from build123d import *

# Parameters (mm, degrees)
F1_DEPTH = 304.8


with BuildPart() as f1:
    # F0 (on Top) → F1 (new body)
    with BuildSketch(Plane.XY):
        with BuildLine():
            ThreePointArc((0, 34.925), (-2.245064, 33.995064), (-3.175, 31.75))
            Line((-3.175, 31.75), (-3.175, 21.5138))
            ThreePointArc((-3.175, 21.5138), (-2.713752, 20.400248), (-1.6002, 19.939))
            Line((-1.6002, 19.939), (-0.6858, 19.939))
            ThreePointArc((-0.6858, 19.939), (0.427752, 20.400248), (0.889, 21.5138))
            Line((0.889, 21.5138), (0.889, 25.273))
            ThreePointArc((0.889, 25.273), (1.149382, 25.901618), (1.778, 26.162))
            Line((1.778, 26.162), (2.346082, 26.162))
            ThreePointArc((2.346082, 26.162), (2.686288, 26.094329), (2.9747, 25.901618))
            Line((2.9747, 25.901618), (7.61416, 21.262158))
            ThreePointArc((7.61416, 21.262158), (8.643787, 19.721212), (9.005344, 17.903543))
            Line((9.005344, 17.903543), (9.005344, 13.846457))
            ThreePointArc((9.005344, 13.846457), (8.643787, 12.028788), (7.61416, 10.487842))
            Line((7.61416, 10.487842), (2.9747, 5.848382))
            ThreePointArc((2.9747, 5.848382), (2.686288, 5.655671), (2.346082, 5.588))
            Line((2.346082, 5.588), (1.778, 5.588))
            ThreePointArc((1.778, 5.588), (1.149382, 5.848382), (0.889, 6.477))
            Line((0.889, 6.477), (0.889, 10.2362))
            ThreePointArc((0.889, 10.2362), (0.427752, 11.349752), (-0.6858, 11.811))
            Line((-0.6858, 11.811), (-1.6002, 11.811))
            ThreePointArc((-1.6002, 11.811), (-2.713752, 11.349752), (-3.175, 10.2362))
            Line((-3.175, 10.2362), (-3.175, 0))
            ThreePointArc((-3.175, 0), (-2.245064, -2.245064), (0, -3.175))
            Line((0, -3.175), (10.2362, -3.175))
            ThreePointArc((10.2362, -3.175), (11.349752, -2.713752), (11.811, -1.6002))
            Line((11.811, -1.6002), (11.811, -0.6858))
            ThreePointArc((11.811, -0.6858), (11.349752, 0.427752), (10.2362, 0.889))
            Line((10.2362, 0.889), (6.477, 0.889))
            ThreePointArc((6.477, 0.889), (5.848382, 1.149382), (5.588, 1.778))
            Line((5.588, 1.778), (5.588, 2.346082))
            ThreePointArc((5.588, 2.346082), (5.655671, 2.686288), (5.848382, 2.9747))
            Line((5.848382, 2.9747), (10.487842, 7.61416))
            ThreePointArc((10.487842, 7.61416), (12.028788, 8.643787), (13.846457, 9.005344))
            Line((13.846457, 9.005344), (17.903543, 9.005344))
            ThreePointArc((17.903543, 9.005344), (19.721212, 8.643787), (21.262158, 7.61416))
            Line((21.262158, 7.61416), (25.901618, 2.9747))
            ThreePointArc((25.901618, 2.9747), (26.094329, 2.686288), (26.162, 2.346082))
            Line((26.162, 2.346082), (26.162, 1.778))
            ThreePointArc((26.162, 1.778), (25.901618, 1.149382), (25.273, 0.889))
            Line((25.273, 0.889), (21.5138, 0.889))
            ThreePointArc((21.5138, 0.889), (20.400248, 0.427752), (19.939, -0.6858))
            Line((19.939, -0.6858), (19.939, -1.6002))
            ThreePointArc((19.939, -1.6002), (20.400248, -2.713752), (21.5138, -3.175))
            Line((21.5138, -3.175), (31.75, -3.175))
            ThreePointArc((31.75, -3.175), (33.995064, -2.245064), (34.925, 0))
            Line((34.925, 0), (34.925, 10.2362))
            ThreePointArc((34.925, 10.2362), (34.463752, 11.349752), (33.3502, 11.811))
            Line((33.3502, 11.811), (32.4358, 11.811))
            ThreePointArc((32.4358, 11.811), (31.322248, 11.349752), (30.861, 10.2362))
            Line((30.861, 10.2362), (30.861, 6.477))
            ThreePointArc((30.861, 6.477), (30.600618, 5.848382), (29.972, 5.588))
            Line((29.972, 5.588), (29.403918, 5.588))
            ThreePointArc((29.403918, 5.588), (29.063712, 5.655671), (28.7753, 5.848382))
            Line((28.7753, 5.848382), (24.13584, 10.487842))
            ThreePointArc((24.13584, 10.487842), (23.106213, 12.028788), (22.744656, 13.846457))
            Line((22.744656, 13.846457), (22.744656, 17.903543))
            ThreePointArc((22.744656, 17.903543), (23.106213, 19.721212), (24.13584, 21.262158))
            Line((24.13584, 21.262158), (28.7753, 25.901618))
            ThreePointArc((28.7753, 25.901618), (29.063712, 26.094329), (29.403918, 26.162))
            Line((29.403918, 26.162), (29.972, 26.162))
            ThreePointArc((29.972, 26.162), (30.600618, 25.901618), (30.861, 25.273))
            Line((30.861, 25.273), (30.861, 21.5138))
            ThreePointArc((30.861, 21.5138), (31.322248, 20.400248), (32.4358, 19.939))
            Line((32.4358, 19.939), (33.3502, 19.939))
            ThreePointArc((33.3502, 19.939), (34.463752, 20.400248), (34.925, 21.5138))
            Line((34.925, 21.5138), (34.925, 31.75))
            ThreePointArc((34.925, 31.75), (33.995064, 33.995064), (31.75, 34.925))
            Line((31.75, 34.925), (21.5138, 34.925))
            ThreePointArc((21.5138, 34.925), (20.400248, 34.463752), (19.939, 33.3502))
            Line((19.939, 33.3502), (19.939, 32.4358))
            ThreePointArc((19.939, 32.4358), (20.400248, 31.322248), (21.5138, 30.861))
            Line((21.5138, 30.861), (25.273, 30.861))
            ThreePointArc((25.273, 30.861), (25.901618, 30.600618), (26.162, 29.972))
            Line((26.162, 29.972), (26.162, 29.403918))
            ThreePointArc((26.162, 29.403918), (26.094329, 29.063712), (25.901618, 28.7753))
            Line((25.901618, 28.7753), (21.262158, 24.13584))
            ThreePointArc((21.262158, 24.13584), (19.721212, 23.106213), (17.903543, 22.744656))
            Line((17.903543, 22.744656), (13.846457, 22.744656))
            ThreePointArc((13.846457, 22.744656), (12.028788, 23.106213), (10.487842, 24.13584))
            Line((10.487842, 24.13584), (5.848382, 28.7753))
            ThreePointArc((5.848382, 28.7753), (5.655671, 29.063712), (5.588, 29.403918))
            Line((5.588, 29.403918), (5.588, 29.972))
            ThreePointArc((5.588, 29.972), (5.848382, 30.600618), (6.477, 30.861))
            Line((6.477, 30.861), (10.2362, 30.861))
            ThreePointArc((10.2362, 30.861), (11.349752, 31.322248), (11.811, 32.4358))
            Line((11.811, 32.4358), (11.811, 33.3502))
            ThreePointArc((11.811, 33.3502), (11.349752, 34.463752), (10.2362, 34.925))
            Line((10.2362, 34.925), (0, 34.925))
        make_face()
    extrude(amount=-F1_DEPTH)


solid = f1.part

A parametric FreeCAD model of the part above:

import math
import FreeCAD as App
import Part
import Sketcher
Q = App.Units.Quantity

doc = App.newDocument("Part")
body = doc.addObject("PartDesign::Body", "Body")

sketch1 = body.newObject("Sketcher::SketchObject", "Sketch")
sketch1.AttachmentSupport = (doc.getObject("XY_Plane"), [""])
sketch1.MapMode = "FlatFace"
sketch1.addGeometry(Part.ArcOfCircle(Part.Circle(App.Vector(0, 31.75, 0), App.Vector(0, 0, 1), 3.175), math.radians(90.000002), math.radians(179.999998)), False)
sketch1.addGeometry(Part.LineSegment(App.Vector(-3.175, 31.75, 0), App.Vector(-3.175, 21.5138, 0)), False)
sketch1.addGeometry(Part.ArcOfCircle(Part.Circle(App.Vector(-1.600201, 21.513799, 0), App.Vector(0, 0, 1), 1.574799), math.radians(179.99997), math.radians(270.00003)), False)
sketch1.addGeometry(Part.LineSegment(App.Vector(-1.6002, 19.939, 0), App.Vector(-0.6858, 19.939, 0)), False)
sketch1.addGeometry(Part.ArcOfCircle(Part.Circle(App.Vector(-0.685799, 21.513799, 0), App.Vector(0, 0, 1), 1.574799), math.radians(-90.00003), math.radians(0.00003)), False)
sketch1.addGeometry(Part.LineSegment(App.Vector(0.889, 21.5138, 0), App.Vector(0.889, 25.273, 0)), False)
sketch1.addGeometry(Part.ArcOfCircle(Part.Circle(App.Vector(1.778, 25.273, 0), App.Vector(0, 0, 1), 0.889), math.radians(89.999984), math.radians(180.000016)), False)
sketch1.addGeometry(Part.LineSegment(App.Vector(1.778, 26.162, 0), App.Vector(2.346082, 26.162, 0)), False)
sketch1.addGeometry(Part.ArcOfCircle(Part.Circle(App.Vector(2.346083, 25.273002, 0), App.Vector(0, 0, 1), 0.888998), math.radians(44.999942), math.radians(90.000073)), False)
sketch1.addGeometry(Part.LineSegment(App.Vector(2.9747, 25.901618, 0), App.Vector(7.61416, 21.262158, 0)), False)
sketch1.addGeometry(Part.ArcOfCircle(Part.Circle(App.Vector(4.255543, 17.903542, 0), App.Vector(0, 0, 1), 4.749801), math.radians(0.000012), math.radians(44.999992)), False)
sketch1.addGeometry(Part.LineSegment(App.Vector(9.005344, 17.903543, 0), App.Vector(9.005344, 13.846457, 0)), False)
sketch1.addGeometry(Part.ArcOfCircle(Part.Circle(App.Vector(4.255543, 13.846458, 0), App.Vector(0, 0, 1), 4.749801), math.radians(-44.999992), math.radians(-0.000012)), False)
sketch1.addGeometry(Part.LineSegment(App.Vector(7.61416, 10.487842, 0), App.Vector(2.9747, 5.848382, 0)), False)
sketch1.addGeometry(Part.ArcOfCircle(Part.Circle(App.Vector(2.346083, 6.476998, 0), App.Vector(0, 0, 1), 0.888998), math.radians(-90.000073), math.radians(-44.999942)), False)
sketch1.addGeometry(Part.LineSegment(App.Vector(2.346082, 5.588, 0), App.Vector(1.778, 5.588, 0)), False)
sketch1.addGeometry(Part.ArcOfCircle(Part.Circle(App.Vector(1.778, 6.477, 0), App.Vector(0, 0, 1), 0.889), math.radians(179.999984), math.radians(270.000016)), False)
sketch1.addGeometry(Part.LineSegment(App.Vector(0.889, 6.477, 0), App.Vector(0.889, 10.2362, 0)), False)
sketch1.addGeometry(Part.ArcOfCircle(Part.Circle(App.Vector(-0.685799, 10.236201, 0), App.Vector(0, 0, 1), 1.574799), math.radians(-0.00003), math.radians(90.00003)), False)
sketch1.addGeometry(Part.LineSegment(App.Vector(-0.6858, 11.811, 0), App.Vector(-1.6002, 11.811, 0)), False)
sketch1.addGeometry(Part.ArcOfCircle(Part.Circle(App.Vector(-1.600201, 10.236201, 0), App.Vector(0, 0, 1), 1.574799), math.radians(89.99997), math.radians(180.00003)), False)
sketch1.addGeometry(Part.LineSegment(App.Vector(-3.175, 10.2362, 0), App.Vector(-3.175, 0, 0)), False)
sketch1.addGeometry(Part.ArcOfCircle(Part.Circle(App.Vector(0, 0, 0), App.Vector(0, 0, 1), 3.175), math.radians(-179.999998), math.radians(-90.000002)), False)
sketch1.addGeometry(Part.LineSegment(App.Vector(0, -3.175, 0), App.Vector(10.2362, -3.175, 0)), False)
sketch1.addGeometry(Part.ArcOfCircle(Part.Circle(App.Vector(10.236201, -1.600201, 0), App.Vector(0, 0, 1), 1.574799), math.radians(-90.00003), math.radians(0.00003)), False)
sketch1.addGeometry(Part.LineSegment(App.Vector(11.811, -1.6002, 0), App.Vector(11.811, -0.6858, 0)), False)
sketch1.addGeometry(Part.ArcOfCircle(Part.Circle(App.Vector(10.236201, -0.685799, 0), App.Vector(0, 0, 1), 1.574799), math.radians(-0.00003), math.radians(90.00003)), False)
sketch1.addGeometry(Part.LineSegment(App.Vector(10.2362, 0.889, 0), App.Vector(6.477, 0.889, 0)), False)
sketch1.addGeometry(Part.ArcOfCircle(Part.Circle(App.Vector(6.477, 1.778, 0), App.Vector(0, 0, 1), 0.889), math.radians(179.999984), math.radians(270.000016)), False)
sketch1.addGeometry(Part.LineSegment(App.Vector(5.588, 1.778, 0), App.Vector(5.588, 2.346082, 0)), False)
sketch1.addGeometry(Part.ArcOfCircle(Part.Circle(App.Vector(6.476998, 2.346083, 0), App.Vector(0, 0, 1), 0.888998), math.radians(134.999942), math.radians(180.000073)), False)
sketch1.addGeometry(Part.LineSegment(App.Vector(5.848382, 2.9747, 0), App.Vector(10.487842, 7.61416, 0)), False)
sketch1.addGeometry(Part.ArcOfCircle(Part.Circle(App.Vector(13.846458, 4.255543, 0), App.Vector(0, 0, 1), 4.749801), math.radians(90.000012), math.radians(134.999992)), False)
sketch1.addGeometry(Part.LineSegment(App.Vector(13.846457, 9.005344, 0), App.Vector(17.903543, 9.005344, 0)), False)
sketch1.addGeometry(Part.ArcOfCircle(Part.Circle(App.Vector(17.903542, 4.255543, 0), App.Vector(0, 0, 1), 4.749801), math.radians(45.000008), math.radians(89.999988)), False)
sketch1.addGeometry(Part.LineSegment(App.Vector(21.262158, 7.61416, 0), App.Vector(25.901618, 2.9747, 0)), False)
sketch1.addGeometry(Part.ArcOfCircle(Part.Circle(App.Vector(25.273002, 2.346083, 0), App.Vector(0, 0, 1), 0.888998), math.radians(-0.000073), math.radians(45.000058)), False)
sketch1.addGeometry(Part.LineSegment(App.Vector(26.162, 2.346082, 0), App.Vector(26.162, 1.778, 0)), False)
sketch1.addGeometry(Part.ArcOfCircle(Part.Circle(App.Vector(25.273, 1.778, 0), App.Vector(0, 0, 1), 0.889), math.radians(-90.000016), math.radians(0.000016)), False)
sketch1.addGeometry(Part.LineSegment(App.Vector(25.273, 0.889, 0), App.Vector(21.5138, 0.889, 0)), False)
sketch1.addGeometry(Part.ArcOfCircle(Part.Circle(App.Vector(21.513799, -0.685799, 0), App.Vector(0, 0, 1), 1.574799), math.radians(89.99997), math.radians(180.00003)), False)
sketch1.addGeometry(Part.LineSegment(App.Vector(19.939, -0.6858, 0), App.Vector(19.939, -1.6002, 0)), False)
sketch1.addGeometry(Part.ArcOfCircle(Part.Circle(App.Vector(21.513799, -1.600201, 0), App.Vector(0, 0, 1), 1.574799), math.radians(179.99997), math.radians(270.00003)), False)
sketch1.addGeometry(Part.LineSegment(App.Vector(21.5138, -3.175, 0), App.Vector(31.75, -3.175, 0)), False)
sketch1.addGeometry(Part.ArcOfCircle(Part.Circle(App.Vector(31.75, 0, 0), App.Vector(0, 0, 1), 3.175), math.radians(-89.999998), math.radians(-0.000002)), False)
sketch1.addGeometry(Part.LineSegment(App.Vector(34.925, 0, 0), App.Vector(34.925, 10.2362, 0)), False)
sketch1.addGeometry(Part.ArcOfCircle(Part.Circle(App.Vector(33.350201, 10.236201, 0), App.Vector(0, 0, 1), 1.574799), math.radians(-0.00003), math.radians(90.00003)), False)
sketch1.addGeometry(Part.LineSegment(App.Vector(33.3502, 11.811, 0), App.Vector(32.4358, 11.811, 0)), False)
sketch1.addGeometry(Part.ArcOfCircle(Part.Circle(App.Vector(32.435799, 10.236201, 0), App.Vector(0, 0, 1), 1.574799), math.radians(89.99997), math.radians(180.00003)), False)
sketch1.addGeometry(Part.LineSegment(App.Vector(30.861, 10.2362, 0), App.Vector(30.861, 6.477, 0)), False)
sketch1.addGeometry(Part.ArcOfCircle(Part.Circle(App.Vector(29.972, 6.477, 0), App.Vector(0, 0, 1), 0.889), math.radians(-90.000016), math.radians(0.000016)), False)
sketch1.addGeometry(Part.LineSegment(App.Vector(29.972, 5.588, 0), App.Vector(29.403918, 5.588, 0)), False)
sketch1.addGeometry(Part.ArcOfCircle(Part.Circle(App.Vector(29.403917, 6.476998, 0), App.Vector(0, 0, 1), 0.888998), math.radians(-135.000058), math.radians(-89.999927)), False)
sketch1.addGeometry(Part.LineSegment(App.Vector(28.7753, 5.848382, 0), App.Vector(24.13584, 10.487842, 0)), False)
sketch1.addGeometry(Part.ArcOfCircle(Part.Circle(App.Vector(27.494457, 13.846458, 0), App.Vector(0, 0, 1), 4.749801), math.radians(-179.999988), math.radians(-135.000008)), False)
sketch1.addGeometry(Part.LineSegment(App.Vector(22.744656, 13.846457, 0), App.Vector(22.744656, 17.903543, 0)), False)
sketch1.addGeometry(Part.ArcOfCircle(Part.Circle(App.Vector(27.494457, 17.903542, 0), App.Vector(0, 0, 1), 4.749801), math.radians(135.000008), math.radians(179.999988)), False)
sketch1.addGeometry(Part.LineSegment(App.Vector(24.13584, 21.262158, 0), App.Vector(28.7753, 25.901618, 0)), False)
sketch1.addGeometry(Part.ArcOfCircle(Part.Circle(App.Vector(29.403917, 25.273002, 0), App.Vector(0, 0, 1), 0.888998), math.radians(89.999927), math.radians(135.000058)), False)
sketch1.addGeometry(Part.LineSegment(App.Vector(29.403918, 26.162, 0), App.Vector(29.972, 26.162, 0)), False)
sketch1.addGeometry(Part.ArcOfCircle(Part.Circle(App.Vector(29.972, 25.273, 0), App.Vector(0, 0, 1), 0.889), math.radians(-0.000016), math.radians(90.000016)), False)
sketch1.addGeometry(Part.LineSegment(App.Vector(30.861, 25.273, 0), App.Vector(30.861, 21.5138, 0)), False)
sketch1.addGeometry(Part.ArcOfCircle(Part.Circle(App.Vector(32.435799, 21.513799, 0), App.Vector(0, 0, 1), 1.574799), math.radians(179.99997), math.radians(270.00003)), False)
sketch1.addGeometry(Part.LineSegment(App.Vector(32.4358, 19.939, 0), App.Vector(33.3502, 19.939, 0)), False)
sketch1.addGeometry(Part.ArcOfCircle(Part.Circle(App.Vector(33.350201, 21.513799, 0), App.Vector(0, 0, 1), 1.574799), math.radians(-90.00003), math.radians(0.00003)), False)
sketch1.addGeometry(Part.LineSegment(App.Vector(34.925, 21.5138, 0), App.Vector(34.925, 31.75, 0)), False)
sketch1.addGeometry(Part.ArcOfCircle(Part.Circle(App.Vector(31.75, 31.75, 0), App.Vector(0, 0, 1), 3.175), math.radians(0.000002), math.radians(89.999998)), False)
sketch1.addGeometry(Part.LineSegment(App.Vector(31.75, 34.925, 0), App.Vector(21.5138, 34.925, 0)), False)
sketch1.addGeometry(Part.ArcOfCircle(Part.Circle(App.Vector(21.513799, 33.350201, 0), App.Vector(0, 0, 1), 1.574799), math.radians(89.99997), math.radians(180.00003)), False)
sketch1.addGeometry(Part.LineSegment(App.Vector(19.939, 33.3502, 0), App.Vector(19.939, 32.4358, 0)), False)
sketch1.addGeometry(Part.ArcOfCircle(Part.Circle(App.Vector(21.513799, 32.435799, 0), App.Vector(0, 0, 1), 1.574799), math.radians(179.99997), math.radians(270.00003)), False)
sketch1.addGeometry(Part.LineSegment(App.Vector(21.5138, 30.861, 0), App.Vector(25.273, 30.861, 0)), False)
sketch1.addGeometry(Part.ArcOfCircle(Part.Circle(App.Vector(25.273, 29.972, 0), App.Vector(0, 0, 1), 0.889), math.radians(-0.000016), math.radians(90.000016)), False)
sketch1.addGeometry(Part.LineSegment(App.Vector(26.162, 29.972, 0), App.Vector(26.162, 29.403918, 0)), False)
sketch1.addGeometry(Part.ArcOfCircle(Part.Circle(App.Vector(25.273002, 29.403917, 0), App.Vector(0, 0, 1), 0.888998), math.radians(-45.000058), math.radians(0.000073)), False)
sketch1.addGeometry(Part.LineSegment(App.Vector(25.901618, 28.7753, 0), App.Vector(21.262158, 24.13584, 0)), False)
sketch1.addGeometry(Part.ArcOfCircle(Part.Circle(App.Vector(17.903542, 27.494457, 0), App.Vector(0, 0, 1), 4.749801), math.radians(-89.999988), math.radians(-45.000008)), False)
sketch1.addGeometry(Part.LineSegment(App.Vector(17.903543, 22.744656, 0), App.Vector(13.846457, 22.744656, 0)), False)
sketch1.addGeometry(Part.ArcOfCircle(Part.Circle(App.Vector(13.846458, 27.494457, 0), App.Vector(0, 0, 1), 4.749801), math.radians(-134.999992), math.radians(-90.000012)), False)
sketch1.addGeometry(Part.LineSegment(App.Vector(10.487842, 24.13584, 0), App.Vector(5.848382, 28.7753, 0)), False)
sketch1.addGeometry(Part.ArcOfCircle(Part.Circle(App.Vector(6.476998, 29.403917, 0), App.Vector(0, 0, 1), 0.888998), math.radians(179.999927), math.radians(225.000058)), False)
sketch1.addGeometry(Part.LineSegment(App.Vector(5.588, 29.403918, 0), App.Vector(5.588, 29.972, 0)), False)
sketch1.addGeometry(Part.ArcOfCircle(Part.Circle(App.Vector(6.477, 29.972, 0), App.Vector(0, 0, 1), 0.889), math.radians(89.999984), math.radians(180.000016)), False)
sketch1.addGeometry(Part.LineSegment(App.Vector(6.477, 30.861, 0), App.Vector(10.2362, 30.861, 0)), False)
sketch1.addGeometry(Part.ArcOfCircle(Part.Circle(App.Vector(10.236201, 32.435799, 0), App.Vector(0, 0, 1), 1.574799), math.radians(-90.00003), math.radians(0.00003)), False)
sketch1.addGeometry(Part.LineSegment(App.Vector(11.811, 32.4358, 0), App.Vector(11.811, 33.3502, 0)), False)
sketch1.addGeometry(Part.ArcOfCircle(Part.Circle(App.Vector(10.236201, 33.350201, 0), App.Vector(0, 0, 1), 1.574799), math.radians(-0.00003), math.radians(90.00003)), False)
sketch1.addGeometry(Part.LineSegment(App.Vector(10.2362, 34.925, 0), App.Vector(0, 34.925, 0)), False)
sketch1.addConstraint(Sketcher.Constraint("Tangent", 0, 2, 1, 1))
sketch1.addConstraint(Sketcher.Constraint("Tangent", 1, 2, 2, 1))
sketch1.addConstraint(Sketcher.Constraint("Tangent", 2, 2, 3, 1))
sketch1.addConstraint(Sketcher.Constraint("Tangent", 3, 2, 4, 1))
sketch1.addConstraint(Sketcher.Constraint("Tangent", 4, 2, 5, 1))
sketch1.addConstraint(Sketcher.Constraint("Tangent", 5, 2, 6, 2))
sketch1.addConstraint(Sketcher.Constraint("Tangent", 6, 1, 7, 1))
sketch1.addConstraint(Sketcher.Constraint("Tangent", 7, 2, 8, 2))
sketch1.addConstraint(Sketcher.Constraint("Tangent", 8, 1, 9, 1))
sketch1.addConstraint(Sketcher.Constraint("Tangent", 9, 2, 10, 2))
sketch1.addConstraint(Sketcher.Constraint("Tangent", 10, 1, 11, 1))
sketch1.addConstraint(Sketcher.Constraint("Tangent", 11, 2, 12, 2))
sketch1.addConstraint(Sketcher.Constraint("Tangent", 12, 1, 13, 1))
sketch1.addConstraint(Sketcher.Constraint("Tangent", 13, 2, 14, 2))
sketch1.addConstraint(Sketcher.Constraint("Tangent", 14, 1, 15, 1))
sketch1.addConstraint(Sketcher.Constraint("Tangent", 15, 2, 16, 2))
sketch1.addConstraint(Sketcher.Constraint("Tangent", 16, 1, 17, 1))
sketch1.addConstraint(Sketcher.Constraint("Tangent", 17, 2, 18, 1))
sketch1.addConstraint(Sketcher.Constraint("Tangent", 18, 2, 19, 1))
sketch1.addConstraint(Sketcher.Constraint("Tangent", 19, 2, 20, 1))
sketch1.addConstraint(Sketcher.Constraint("Tangent", 20, 2, 21, 1))
sketch1.addConstraint(Sketcher.Constraint("Tangent", 21, 2, 22, 1))
sketch1.addConstraint(Sketcher.Constraint("Tangent", 22, 2, 23, 1))
sketch1.addConstraint(Sketcher.Constraint("Tangent", 23, 2, 24, 1))
sketch1.addConstraint(Sketcher.Constraint("Tangent", 24, 2, 25, 1))
sketch1.addConstraint(Sketcher.Constraint("Tangent", 25, 2, 26, 1))
sketch1.addConstraint(Sketcher.Constraint("Tangent", 26, 2, 27, 1))
sketch1.addConstraint(Sketcher.Constraint("Tangent", 27, 2, 28, 2))
sketch1.addConstraint(Sketcher.Constraint("Tangent", 28, 1, 29, 1))
sketch1.addConstraint(Sketcher.Constraint("Tangent", 29, 2, 30, 2))
sketch1.addConstraint(Sketcher.Constraint("Tangent", 30, 1, 31, 1))
sketch1.addConstraint(Sketcher.Constraint("Tangent", 31, 2, 32, 2))
sketch1.addConstraint(Sketcher.Constraint("Tangent", 32, 1, 33, 1))
sketch1.addConstraint(Sketcher.Constraint("Tangent", 33, 2, 34, 2))
sketch1.addConstraint(Sketcher.Constraint("Tangent", 34, 1, 35, 1))
sketch1.addConstraint(Sketcher.Constraint("Tangent", 35, 2, 36, 2))
sketch1.addConstraint(Sketcher.Constraint("Tangent", 36, 1, 37, 1))
sketch1.addConstraint(Sketcher.Constraint("Tangent", 37, 2, 38, 2))
sketch1.addConstraint(Sketcher.Constraint("Tangent", 38, 1, 39, 1))
sketch1.addConstraint(Sketcher.Constraint("Tangent", 39, 2, 40, 1))
sketch1.addConstraint(Sketcher.Constraint("Tangent", 40, 2, 41, 1))
sketch1.addConstraint(Sketcher.Constraint("Tangent", 41, 2, 42, 1))
sketch1.addConstraint(Sketcher.Constraint("Tangent", 42, 2, 43, 1))
sketch1.addConstraint(Sketcher.Constraint("Tangent", 43, 2, 44, 1))
sketch1.addConstraint(Sketcher.Constraint("Tangent", 44, 2, 45, 1))
sketch1.addConstraint(Sketcher.Constraint("Tangent", 45, 2, 46, 1))
sketch1.addConstraint(Sketcher.Constraint("Tangent", 46, 2, 47, 1))
sketch1.addConstraint(Sketcher.Constraint("Tangent", 47, 2, 48, 1))
sketch1.addConstraint(Sketcher.Constraint("Tangent", 48, 2, 49, 1))
sketch1.addConstraint(Sketcher.Constraint("Tangent", 49, 2, 50, 2))
sketch1.addConstraint(Sketcher.Constraint("Tangent", 50, 1, 51, 1))
sketch1.addConstraint(Sketcher.Constraint("Tangent", 51, 2, 52, 2))
sketch1.addConstraint(Sketcher.Constraint("Tangent", 52, 1, 53, 1))
sketch1.addConstraint(Sketcher.Constraint("Tangent", 53, 2, 54, 2))
sketch1.addConstraint(Sketcher.Constraint("Tangent", 54, 1, 55, 1))
sketch1.addConstraint(Sketcher.Constraint("Tangent", 55, 2, 56, 2))
sketch1.addConstraint(Sketcher.Constraint("Tangent", 56, 1, 57, 1))
sketch1.addConstraint(Sketcher.Constraint("Tangent", 57, 2, 58, 2))
sketch1.addConstraint(Sketcher.Constraint("Tangent", 58, 1, 59, 1))
sketch1.addConstraint(Sketcher.Constraint("Tangent", 59, 2, 60, 2))
sketch1.addConstraint(Sketcher.Constraint("Tangent", 60, 1, 61, 1))
sketch1.addConstraint(Sketcher.Constraint("Tangent", 61, 2, 62, 1))
sketch1.addConstraint(Sketcher.Constraint("Tangent", 62, 2, 63, 1))
sketch1.addConstraint(Sketcher.Constraint("Tangent", 63, 2, 64, 1))
sketch1.addConstraint(Sketcher.Constraint("Tangent", 64, 2, 65, 1))
sketch1.addConstraint(Sketcher.Constraint("Tangent", 65, 2, 66, 1))
sketch1.addConstraint(Sketcher.Constraint("Tangent", 66, 2, 67, 1))
sketch1.addConstraint(Sketcher.Constraint("Tangent", 67, 2, 68, 1))
sketch1.addConstraint(Sketcher.Constraint("Tangent", 68, 2, 69, 1))
sketch1.addConstraint(Sketcher.Constraint("Tangent", 69, 2, 70, 1))
sketch1.addConstraint(Sketcher.Constraint("Tangent", 70, 2, 71, 1))
sketch1.addConstraint(Sketcher.Constraint("Tangent", 71, 2, 72, 2))
sketch1.addConstraint(Sketcher.Constraint("Tangent", 72, 1, 73, 1))
sketch1.addConstraint(Sketcher.Constraint("Tangent", 73, 2, 74, 2))
sketch1.addConstraint(Sketcher.Constraint("Tangent", 74, 1, 75, 1))
sketch1.addConstraint(Sketcher.Constraint("Tangent", 75, 2, 76, 2))
sketch1.addConstraint(Sketcher.Constraint("Tangent", 76, 1, 77, 1))
sketch1.addConstraint(Sketcher.Constraint("Tangent", 77, 2, 78, 2))
sketch1.addConstraint(Sketcher.Constraint("Tangent", 78, 1, 79, 1))
sketch1.addConstraint(Sketcher.Constraint("Tangent", 79, 2, 80, 2))
sketch1.addConstraint(Sketcher.Constraint("Tangent", 80, 1, 81, 1))
sketch1.addConstraint(Sketcher.Constraint("Tangent", 81, 2, 82, 2))
sketch1.addConstraint(Sketcher.Constraint("Tangent", 82, 1, 83, 1))
sketch1.addConstraint(Sketcher.Constraint("Tangent", 83, 2, 84, 1))
sketch1.addConstraint(Sketcher.Constraint("Tangent", 84, 2, 85, 1))
sketch1.addConstraint(Sketcher.Constraint("Tangent", 85, 2, 86, 1))
sketch1.addConstraint(Sketcher.Constraint("Tangent", 86, 2, 87, 1))
sketch1.addConstraint(Sketcher.Constraint("Tangent", 87, 2, 0, 1))
sketch1.addConstraint(Sketcher.Constraint("Vertical", 1))
sketch1.addConstraint(Sketcher.Constraint("Horizontal", 3))
sketch1.addConstraint(Sketcher.Constraint("Vertical", 5))
sketch1.addConstraint(Sketcher.Constraint("Horizontal", 7))
sketch1.addConstraint(Sketcher.Constraint("Vertical", 11))
sketch1.addConstraint(Sketcher.Constraint("Horizontal", 15))
sketch1.addConstraint(Sketcher.Constraint("Vertical", 17))
sketch1.addConstraint(Sketcher.Constraint("Horizontal", 19))
sketch1.addConstraint(Sketcher.Constraint("Vertical", 21))
sketch1.addConstraint(Sketcher.Constraint("Horizontal", 23))
sketch1.addConstraint(Sketcher.Constraint("Vertical", 25))
sketch1.addConstraint(Sketcher.Constraint("Horizontal", 27))
sketch1.addConstraint(Sketcher.Constraint("Vertical", 29))
sketch1.addConstraint(Sketcher.Constraint("Horizontal", 33))
sketch1.addConstraint(Sketcher.Constraint("Vertical", 37))
sketch1.addConstraint(Sketcher.Constraint("Horizontal", 39))
sketch1.addConstraint(Sketcher.Constraint("Vertical", 41))
sketch1.addConstraint(Sketcher.Constraint("Horizontal", 43))
sketch1.addConstraint(Sketcher.Constraint("Vertical", 45))
sketch1.addConstraint(Sketcher.Constraint("Horizontal", 47))
sketch1.addConstraint(Sketcher.Constraint("Vertical", 49))
sketch1.addConstraint(Sketcher.Constraint("Horizontal", 51))
sketch1.addConstraint(Sketcher.Constraint("Vertical", 55))
sketch1.addConstraint(Sketcher.Constraint("Horizontal", 59))
sketch1.addConstraint(Sketcher.Constraint("Vertical", 61))
sketch1.addConstraint(Sketcher.Constraint("Horizontal", 63))
sketch1.addConstraint(Sketcher.Constraint("Vertical", 65))
sketch1.addConstraint(Sketcher.Constraint("Horizontal", 67))
sketch1.addConstraint(Sketcher.Constraint("Vertical", 69))
sketch1.addConstraint(Sketcher.Constraint("Horizontal", 71))
sketch1.addConstraint(Sketcher.Constraint("Vertical", 73))
sketch1.addConstraint(Sketcher.Constraint("Horizontal", 77))
sketch1.addConstraint(Sketcher.Constraint("Vertical", 81))
sketch1.addConstraint(Sketcher.Constraint("Horizontal", 83))
sketch1.addConstraint(Sketcher.Constraint("Vertical", 85))
sketch1.addConstraint(Sketcher.Constraint("Horizontal", 87))
sketch1.addConstraint(Sketcher.Constraint("Coincident", 22, 3, -1, 1))
sketch1.addConstraint(Sketcher.Constraint("Equal", 2, 4))
sketch1.addConstraint(Sketcher.Constraint("Equal", 10, 12))
sketch1.addConstraint(Sketcher.Constraint("Equal", 8, 14))
sketch1.addConstraint(Sketcher.Constraint("Equal", 6, 16))
sketch1.addConstraint(Sketcher.Constraint("Equal", 4, 18))
sketch1.addConstraint(Sketcher.Constraint("Equal", 18, 20))
sketch1.addConstraint(Sketcher.Constraint("Equal", 0, 22))
sketch1.addConstraint(Sketcher.Constraint("Equal", 20, 24))
sketch1.addConstraint(Sketcher.Constraint("Equal", 24, 26))
sketch1.addConstraint(Sketcher.Constraint("Equal", 16, 28))
sketch1.addConstraint(Sketcher.Constraint("Equal", 14, 30))
sketch1.addConstraint(Sketcher.Constraint("Equal", 12, 32))
sketch1.addConstraint(Sketcher.Constraint("Equal", 32, 34))
sketch1.addConstraint(Sketcher.Constraint("Equal", 30, 36))
sketch1.addConstraint(Sketcher.Constraint("Equal", 28, 38))
sketch1.addConstraint(Sketcher.Constraint("Equal", 26, 40))
sketch1.addConstraint(Sketcher.Constraint("Equal", 40, 42))
sketch1.addConstraint(Sketcher.Constraint("Equal", 22, 44))
sketch1.addConstraint(Sketcher.Constraint("Equal", 42, 46))
sketch1.addConstraint(Sketcher.Constraint("Equal", 46, 48))
sketch1.addConstraint(Sketcher.Constraint("Equal", 38, 50))
sketch1.addConstraint(Sketcher.Constraint("Equal", 36, 52))
sketch1.addConstraint(Sketcher.Constraint("Equal", 34, 54))
sketch1.addConstraint(Sketcher.Constraint("Equal", 54, 56))
sketch1.addConstraint(Sketcher.Constraint("Equal", 52, 58))
sketch1.addConstraint(Sketcher.Constraint("Equal", 50, 60))
sketch1.addConstraint(Sketcher.Constraint("Equal", 48, 62))
sketch1.addConstraint(Sketcher.Constraint("Equal", 62, 64))
sketch1.addConstraint(Sketcher.Constraint("Equal", 44, 66))
sketch1.addConstraint(Sketcher.Constraint("Equal", 64, 68))
sketch1.addConstraint(Sketcher.Constraint("Equal", 68, 70))
sketch1.addConstraint(Sketcher.Constraint("Equal", 60, 72))
sketch1.addConstraint(Sketcher.Constraint("Equal", 58, 74))
sketch1.addConstraint(Sketcher.Constraint("Equal", 56, 76))
sketch1.addConstraint(Sketcher.Constraint("Equal", 76, 78))
sketch1.addConstraint(Sketcher.Constraint("Equal", 74, 80))
sketch1.addConstraint(Sketcher.Constraint("Equal", 72, 82))
sketch1.addConstraint(Sketcher.Constraint("Equal", 70, 84))
sketch1.addConstraint(Sketcher.Constraint("Equal", 84, 86))
sketch1.addConstraint(Sketcher.Constraint("PointOnObject", 0, 3, -2))
sketch1.addConstraint(Sketcher.Constraint("PointOnObject", 44, 3, -1))
sketch1.addConstraint(Sketcher.Constraint("Perpendicular", 9, 13))
sketch1.addConstraint(Sketcher.Constraint("Parallel", 13, 31))
sketch1.addConstraint(Sketcher.Constraint("Perpendicular", 31, 35))
sketch1.addConstraint(Sketcher.Constraint("Parallel", 35, 53))
sketch1.addConstraint(Sketcher.Constraint("Perpendicular", 53, 57))
sketch1.addConstraint(Sketcher.Constraint("Parallel", 57, 75))
sketch1.addConstraint(Sketcher.Constraint("Perpendicular", 75, 79))
sketch1.addConstraint(Sketcher.Constraint("Horizontal", 30, 3, 36, 3))
sketch1.addConstraint(Sketcher.Constraint("Horizontal", 28, 3, 38, 3))
sketch1.addConstraint(Sketcher.Constraint("Horizontal", 20, 3, 46, 3))
sketch1.addConstraint(Sketcher.Constraint("Horizontal", 16, 3, 50, 3))
sketch1.addConstraint(Sketcher.Constraint("Horizontal", 12, 3, 54, 3))
sketch1.addConstraint(Sketcher.Constraint("Horizontal", 10, 3, 56, 3))
sketch1.addConstraint(Sketcher.Constraint("Horizontal", 8, 3, 58, 3))
sketch1.addConstraint(Sketcher.Constraint("Horizontal", 4, 3, 62, 3))
sketch1.addConstraint(Sketcher.Constraint("Horizontal", 0, 3, 66, 3))
sketch1.addConstraint(Sketcher.Constraint("Horizontal", 74, 3, 80, 3))
sketch1.addConstraint(Sketcher.Constraint("Horizontal", 72, 3, 82, 3))
sketch1.addConstraint(Sketcher.Constraint("Horizontal", 31, 2, 34, 1))
sketch1.addConstraint(Sketcher.Constraint("Vertical", 8, 3, 14, 3))
sketch1.addConstraint(Sketcher.Constraint("Vertical", 6, 3, 16, 3))
sketch1.addConstraint(Sketcher.Constraint("Vertical", 50, 3, 60, 3))
sketch1.addConstraint(Sketcher.Constraint("Vertical", 46, 3, 64, 3))
sketch1.addConstraint(Sketcher.Constraint("Vertical", 42, 3, 68, 3))
sketch1.addConstraint(Sketcher.Constraint("Vertical", 38, 3, 72, 3))
sketch1.addConstraint(Sketcher.Constraint("Vertical", 34, 3, 76, 3))
sketch1.addConstraint(Sketcher.Constraint("Vertical", 32, 3, 78, 3))
sketch1.addConstraint(Sketcher.Constraint("Vertical", 26, 3, 84, 3))
sketch1.addConstraint(Sketcher.Constraint("Equal", 27, 39))
sketch1.addConstraint(Sketcher.Constraint("Equal", 23, 43))
sketch1.addConstraint(Sketcher.Constraint("Equal", 19, 47))
sketch1.addConstraint(Sketcher.Constraint("Equal", 15, 51))
sketch1.addConstraint(Sketcher.Constraint("Equal", 87, 1))
sketch1.addConstraint(Sketcher.Constraint("Equal", 83, 5))
sketch1.addConstraint(Sketcher.Constraint("Equal", 77, 11))
sketch1.addConstraint(Sketcher.Constraint("Equal", 5, 17))
sketch1.addConstraint(Sketcher.Constraint("Equal", 1, 21))
sketch1.addConstraint(Sketcher.Constraint("Equal", 63, 25))
sketch1.addConstraint(Sketcher.Constraint("Equal", 59, 29))
sketch1.addConstraint(Sketcher.Constraint("Equal", 41, 69))
sketch1.addConstraint(Sketcher.Constraint("Equal", 37, 73))
sketch1.addConstraint(Sketcher.Constraint("Equal", 13, 31))
sketch1.addConstraint(Sketcher.Constraint("Radius", 0, Q("0.125 in")))
sketch1.addConstraint(Sketcher.Constraint("Radius", 2, Q("0.062 in")))
sketch1.addConstraint(Sketcher.Constraint("Radius", 6, Q("0.035 in")))
sketch1.addConstraint(Sketcher.Constraint("Radius", 8, Q("0.0349999 in")))
sketch1.addConstraint(Sketcher.Constraint("Radius", 10, Q("0.187 in")))
sketch1.addConstraint(Sketcher.Constraint("DistanceX", 3, 1, 3, 2, Q("0.036 in")))
sketch1.addConstraint(Sketcher.Constraint("DistanceX", 23, 1, 23, 2, Q("0.403 in")))
sketch1.addConstraint(Sketcher.Constraint("DistanceX", 27, 2, 27, 1, Q("0.148 in")))
sketch1.addConstraint(Sketcher.Constraint("DistanceY", -1, 1, 0, 3, Q("1.25 in")))
sketch1.addConstraint(Sketcher.Constraint("DistanceX", 7, 1, 7, 2, 0.568082))
sketch1.addConstraint(Sketcher.Constraint("DistanceX", 33, 1, 33, 2, 4.057086))
pad1 = body.newObject("PartDesign::Pad", "Pad")
pad1.Profile = sketch1
pad1.Length = Q("12 in")
pad1.Reversed = True

doc.recompute()
